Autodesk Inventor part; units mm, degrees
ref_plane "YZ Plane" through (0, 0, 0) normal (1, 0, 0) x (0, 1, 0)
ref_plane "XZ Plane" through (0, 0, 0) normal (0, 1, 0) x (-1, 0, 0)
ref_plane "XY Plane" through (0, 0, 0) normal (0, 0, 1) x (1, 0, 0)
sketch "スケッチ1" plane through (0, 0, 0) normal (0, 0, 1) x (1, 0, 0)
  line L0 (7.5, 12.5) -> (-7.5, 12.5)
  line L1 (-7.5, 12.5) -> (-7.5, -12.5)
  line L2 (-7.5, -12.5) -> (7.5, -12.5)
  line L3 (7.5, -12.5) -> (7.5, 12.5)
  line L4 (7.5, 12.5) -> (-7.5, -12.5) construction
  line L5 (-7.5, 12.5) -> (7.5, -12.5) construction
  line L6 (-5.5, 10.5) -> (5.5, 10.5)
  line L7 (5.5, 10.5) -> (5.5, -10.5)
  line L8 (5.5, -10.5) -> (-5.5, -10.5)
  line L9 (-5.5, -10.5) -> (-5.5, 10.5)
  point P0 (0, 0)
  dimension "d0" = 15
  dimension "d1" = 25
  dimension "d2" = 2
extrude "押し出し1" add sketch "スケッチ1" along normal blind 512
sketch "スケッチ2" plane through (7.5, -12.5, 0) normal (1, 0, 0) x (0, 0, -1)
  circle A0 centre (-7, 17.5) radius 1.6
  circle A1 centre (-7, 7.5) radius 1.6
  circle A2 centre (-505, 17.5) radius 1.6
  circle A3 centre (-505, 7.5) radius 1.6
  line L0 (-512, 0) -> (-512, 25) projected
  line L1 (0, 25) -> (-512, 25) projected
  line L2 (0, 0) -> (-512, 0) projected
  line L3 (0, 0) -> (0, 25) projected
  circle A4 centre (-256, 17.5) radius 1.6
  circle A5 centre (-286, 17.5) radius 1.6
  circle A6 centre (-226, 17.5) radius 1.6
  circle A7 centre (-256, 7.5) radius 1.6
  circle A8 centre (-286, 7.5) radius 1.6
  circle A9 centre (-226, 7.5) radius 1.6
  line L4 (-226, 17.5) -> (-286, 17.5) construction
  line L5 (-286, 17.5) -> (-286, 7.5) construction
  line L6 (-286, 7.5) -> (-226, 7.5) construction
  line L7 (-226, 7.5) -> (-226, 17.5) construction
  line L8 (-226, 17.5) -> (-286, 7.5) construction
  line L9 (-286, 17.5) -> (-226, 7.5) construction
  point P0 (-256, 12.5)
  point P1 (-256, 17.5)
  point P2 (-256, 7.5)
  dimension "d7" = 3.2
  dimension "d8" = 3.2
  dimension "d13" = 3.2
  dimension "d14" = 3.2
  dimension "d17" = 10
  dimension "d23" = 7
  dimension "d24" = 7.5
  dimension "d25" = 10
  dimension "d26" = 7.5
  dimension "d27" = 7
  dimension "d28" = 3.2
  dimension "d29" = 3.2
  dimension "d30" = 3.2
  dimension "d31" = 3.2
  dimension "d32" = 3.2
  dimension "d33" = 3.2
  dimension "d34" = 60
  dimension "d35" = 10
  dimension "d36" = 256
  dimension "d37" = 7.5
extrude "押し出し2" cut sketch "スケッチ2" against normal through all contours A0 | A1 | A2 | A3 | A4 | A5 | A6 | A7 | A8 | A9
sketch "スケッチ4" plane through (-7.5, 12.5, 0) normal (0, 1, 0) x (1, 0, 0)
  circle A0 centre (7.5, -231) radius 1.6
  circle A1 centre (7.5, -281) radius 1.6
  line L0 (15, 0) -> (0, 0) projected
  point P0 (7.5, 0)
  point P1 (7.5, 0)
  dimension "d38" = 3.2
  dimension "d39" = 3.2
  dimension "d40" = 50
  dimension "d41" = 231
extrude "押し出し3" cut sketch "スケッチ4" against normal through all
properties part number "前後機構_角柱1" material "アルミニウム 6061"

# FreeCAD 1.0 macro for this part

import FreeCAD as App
import Part
import Sketcher
Q = App.Units.Quantity

doc = App.newDocument("Part")
body = doc.addObject("PartDesign::Body", "Body")

# Sketch on XY plane
sketch1 = body.newObject("Sketcher::SketchObject", "Sketch")
sketch1.AttachmentSupport = (doc.getObject("XY_Plane"), [""])
sketch1.MapMode = "FlatFace"
sketch1.addGeometry([
    Part.LineSegment(App.Vector(7.5, -12.5, 0), App.Vector(7.5, 12.5, 0)),  # 0
    Part.LineSegment(App.Vector(7.5, 12.5, 0), App.Vector(-7.5, 12.5, 0)),  # 1
    Part.LineSegment(App.Vector(-7.5, 12.5, 0), App.Vector(-7.5, -12.5, 0)),  # 2
    Part.LineSegment(App.Vector(-7.5, -12.5, 0), App.Vector(7.5, -12.5, 0)),  # 3
    Part.LineSegment(App.Vector(-5.5, -10.5, 0), App.Vector(-5.5, 10.5, 0)),  # 4
    Part.LineSegment(App.Vector(-5.5, 10.5, 0), App.Vector(5.5, 10.5, 0)),  # 5
    Part.LineSegment(App.Vector(5.5, 10.5, 0), App.Vector(5.5, -10.5, 0)),  # 6
    Part.LineSegment(App.Vector(5.5, -10.5, 0), App.Vector(-5.5, -10.5, 0)),  # 7
], False)
sketch1.addConstraint([
    Sketcher.Constraint("Coincident", 0, 2, 1, 1),
    Sketcher.Constraint("Coincident", 1, 2, 2, 1),
    Sketcher.Constraint("Coincident", 2, 2, 3, 1),
    Sketcher.Constraint("Coincident", 3, 2, 0, 1),
    Sketcher.Constraint("Coincident", 4, 2, 5, 1),
    Sketcher.Constraint("Coincident", 5, 2, 6, 1),
    Sketcher.Constraint("Coincident", 6, 2, 7, 1),
    Sketcher.Constraint("Coincident", 7, 2, 4, 1),
    Sketcher.Constraint("Vertical", 0),
    Sketcher.Constraint("Horizontal", 1),
    Sketcher.Constraint("Vertical", 2),
    Sketcher.Constraint("Horizontal", 3),
    Sketcher.Constraint("Vertical", 4),
    Sketcher.Constraint("Horizontal", 5),
    Sketcher.Constraint("Vertical", 6),
    Sketcher.Constraint("Horizontal", 7),
    Sketcher.Constraint("Symmetric", 0, 2, 2, 2, -1, 1),
    Sketcher.Constraint("Symmetric", 4, 2, 6, 2, -1, 1),
    Sketcher.Constraint("DistanceX", 1, 2, 1, 1, Q("15 mm")),
    Sketcher.Constraint("DistanceY", 0, 1, 0, 2, Q("25 mm")),
    Sketcher.Constraint("DistanceX", 1, 2, 4, 2, Q("2 mm")),
    Sketcher.Constraint("DistanceY", 4, 2, 1, 2, Q("2 mm")),
])
pad1 = body.newObject("PartDesign::Pad", "Pad")
pad1.Profile = sketch1
pad1.Length = 512

# Sketch on YZ plane
sketch2 = body.newObject("Sketcher::SketchObject", "Sketch001")
sketch2.AttachmentSupport = (doc.getObject("YZ_Plane"), [""])
sketch2.MapMode = "FlatFace"
sketch2.AttachmentOffset = App.Placement(App.Vector(0, 0, 7.5), App.Rotation())
sketch2.addGeometry([
    Part.Circle(App.Vector(5, 7, 0), App.Vector(0, 0, 1), 1.6),  # 0
    Part.Circle(App.Vector(-5, 7, 0), App.Vector(0, 0, 1), 1.6),  # 1
    Part.Circle(App.Vector(5, 505, 0), App.Vector(0, 0, 1), 1.6),  # 2
    Part.Circle(App.Vector(-5, 505, 0), App.Vector(0, 0, 1), 1.6),  # 3
    Part.Circle(App.Vector(5, 256, 0), App.Vector(0, 0, 1), 1.6),  # 4
    Part.Circle(App.Vector(5, 286, 0), App.Vector(0, 0, 1), 1.6),  # 5
    Part.Circle(App.Vector(5, 226, 0), App.Vector(0, 0, 1), 1.6),  # 6
    Part.Circle(App.Vector(-5, 256, 0), App.Vector(0, 0, 1), 1.6),  # 7
    Part.Circle(App.Vector(-5, 286, 0), App.Vector(0, 0, 1), 1.6),  # 8
    Part.Circle(App.Vector(-5, 226, 0), App.Vector(0, 0, 1), 1.6),  # 9
], False)
sketch2.addConstraint([
    Sketcher.Constraint("Equal", 0, 1),
    Sketcher.Constraint("Equal", 1, 2),
    Sketcher.Constraint("Equal", 2, 3),
    Sketcher.Constraint("Equal", 3, 4),
    Sketcher.Constraint("Equal", 4, 5),
    Sketcher.Constraint("Equal", 5, 6),
    Sketcher.Constraint("Equal", 6, 7),
    Sketcher.Constraint("Equal", 7, 8),
    Sketcher.Constraint("Equal", 8, 9),
    Sketcher.Constraint("Symmetric", 0, 3, 1, 3, -2),
    Sketcher.Constraint("Symmetric", 2, 3, 3, 3, -2),
    Sketcher.Constraint("Symmetric", 4, 3, 7, 3, -2),
    Sketcher.Constraint("Symmetric", 5, 3, 8, 3, -2),
    Sketcher.Constraint("Symmetric", 6, 3, 9, 3, -2),
    Sketcher.Constraint("Vertical", 0, 3, 2, 3),
    Sketcher.Constraint("Vertical", 2, 3, 4, 3),
    Sketcher.Constraint("Vertical", 4, 3, 5, 3),
    Sketcher.Constraint("Vertical", 5, 3, 6, 3),
    Sketcher.Constraint("Diameter", 0, Q("3.2 mm")),
    Sketcher.Constraint("DistanceY", -1, 1, 0, 3, Q("7 mm")),
    Sketcher.Constraint("DistanceY", -1, 1, 4, 3, Q("256 mm")),
    Sketcher.Constraint("DistanceX", 1, 3, 0, 3, Q("10 mm")),
    Sketcher.Constraint("DistanceY", 6, 3, 5, 3, Q("60 mm")),
    Sketcher.Constraint("DistanceY", -1, 1, 2, 3, Q("505 mm")),
    Sketcher.Constraint("DistanceY", -1, 1, 5, 3, Q("286 mm")),
])
pocket1 = body.newObject("PartDesign::Pocket", "Pocket")
pocket1.Profile = sketch2
pocket1.Type = "ThroughAll"

# Sketch on XZ plane
sketch3 = body.newObject("Sketcher::SketchObject", "Sketch002")
sketch3.AttachmentSupport = (doc.getObject("XZ_Plane"), [""])
sketch3.MapMode = "FlatFace"
sketch3.AttachmentOffset = App.Placement(App.Vector(0, 0, -12.5), App.Rotation())
sketch3.addGeometry([
    Part.Circle(App.Vector(0, 231, 0), App.Vector(0, 0, 1), 1.6),
    Part.Circle(App.Vector(0, 281, 0), App.Vector(0, 0, 1), 1.6),
], False)
sketch3.addConstraint([
    Sketcher.Constraint("Equal", 0, 1),
    Sketcher.Constraint("PointOnObject", 0, 3, -2),
    Sketcher.Constraint("PointOnObject", 1, 3, -2),
    Sketcher.Constraint("Diameter", 0, Q("3.2 mm")),
    Sketcher.Constraint("DistanceY", -1, 1, 0, 3, Q("231 mm")),
    Sketcher.Constraint("DistanceY", 0, 3, 1, 3, Q("50 mm")),
])
pocket2 = body.newObject("PartDesign::Pocket", "Pocket001")
pocket2.Profile = sketch3
pocket2.Type = "ThroughAll"
pocket2.Reversed = True

doc.recompute()
